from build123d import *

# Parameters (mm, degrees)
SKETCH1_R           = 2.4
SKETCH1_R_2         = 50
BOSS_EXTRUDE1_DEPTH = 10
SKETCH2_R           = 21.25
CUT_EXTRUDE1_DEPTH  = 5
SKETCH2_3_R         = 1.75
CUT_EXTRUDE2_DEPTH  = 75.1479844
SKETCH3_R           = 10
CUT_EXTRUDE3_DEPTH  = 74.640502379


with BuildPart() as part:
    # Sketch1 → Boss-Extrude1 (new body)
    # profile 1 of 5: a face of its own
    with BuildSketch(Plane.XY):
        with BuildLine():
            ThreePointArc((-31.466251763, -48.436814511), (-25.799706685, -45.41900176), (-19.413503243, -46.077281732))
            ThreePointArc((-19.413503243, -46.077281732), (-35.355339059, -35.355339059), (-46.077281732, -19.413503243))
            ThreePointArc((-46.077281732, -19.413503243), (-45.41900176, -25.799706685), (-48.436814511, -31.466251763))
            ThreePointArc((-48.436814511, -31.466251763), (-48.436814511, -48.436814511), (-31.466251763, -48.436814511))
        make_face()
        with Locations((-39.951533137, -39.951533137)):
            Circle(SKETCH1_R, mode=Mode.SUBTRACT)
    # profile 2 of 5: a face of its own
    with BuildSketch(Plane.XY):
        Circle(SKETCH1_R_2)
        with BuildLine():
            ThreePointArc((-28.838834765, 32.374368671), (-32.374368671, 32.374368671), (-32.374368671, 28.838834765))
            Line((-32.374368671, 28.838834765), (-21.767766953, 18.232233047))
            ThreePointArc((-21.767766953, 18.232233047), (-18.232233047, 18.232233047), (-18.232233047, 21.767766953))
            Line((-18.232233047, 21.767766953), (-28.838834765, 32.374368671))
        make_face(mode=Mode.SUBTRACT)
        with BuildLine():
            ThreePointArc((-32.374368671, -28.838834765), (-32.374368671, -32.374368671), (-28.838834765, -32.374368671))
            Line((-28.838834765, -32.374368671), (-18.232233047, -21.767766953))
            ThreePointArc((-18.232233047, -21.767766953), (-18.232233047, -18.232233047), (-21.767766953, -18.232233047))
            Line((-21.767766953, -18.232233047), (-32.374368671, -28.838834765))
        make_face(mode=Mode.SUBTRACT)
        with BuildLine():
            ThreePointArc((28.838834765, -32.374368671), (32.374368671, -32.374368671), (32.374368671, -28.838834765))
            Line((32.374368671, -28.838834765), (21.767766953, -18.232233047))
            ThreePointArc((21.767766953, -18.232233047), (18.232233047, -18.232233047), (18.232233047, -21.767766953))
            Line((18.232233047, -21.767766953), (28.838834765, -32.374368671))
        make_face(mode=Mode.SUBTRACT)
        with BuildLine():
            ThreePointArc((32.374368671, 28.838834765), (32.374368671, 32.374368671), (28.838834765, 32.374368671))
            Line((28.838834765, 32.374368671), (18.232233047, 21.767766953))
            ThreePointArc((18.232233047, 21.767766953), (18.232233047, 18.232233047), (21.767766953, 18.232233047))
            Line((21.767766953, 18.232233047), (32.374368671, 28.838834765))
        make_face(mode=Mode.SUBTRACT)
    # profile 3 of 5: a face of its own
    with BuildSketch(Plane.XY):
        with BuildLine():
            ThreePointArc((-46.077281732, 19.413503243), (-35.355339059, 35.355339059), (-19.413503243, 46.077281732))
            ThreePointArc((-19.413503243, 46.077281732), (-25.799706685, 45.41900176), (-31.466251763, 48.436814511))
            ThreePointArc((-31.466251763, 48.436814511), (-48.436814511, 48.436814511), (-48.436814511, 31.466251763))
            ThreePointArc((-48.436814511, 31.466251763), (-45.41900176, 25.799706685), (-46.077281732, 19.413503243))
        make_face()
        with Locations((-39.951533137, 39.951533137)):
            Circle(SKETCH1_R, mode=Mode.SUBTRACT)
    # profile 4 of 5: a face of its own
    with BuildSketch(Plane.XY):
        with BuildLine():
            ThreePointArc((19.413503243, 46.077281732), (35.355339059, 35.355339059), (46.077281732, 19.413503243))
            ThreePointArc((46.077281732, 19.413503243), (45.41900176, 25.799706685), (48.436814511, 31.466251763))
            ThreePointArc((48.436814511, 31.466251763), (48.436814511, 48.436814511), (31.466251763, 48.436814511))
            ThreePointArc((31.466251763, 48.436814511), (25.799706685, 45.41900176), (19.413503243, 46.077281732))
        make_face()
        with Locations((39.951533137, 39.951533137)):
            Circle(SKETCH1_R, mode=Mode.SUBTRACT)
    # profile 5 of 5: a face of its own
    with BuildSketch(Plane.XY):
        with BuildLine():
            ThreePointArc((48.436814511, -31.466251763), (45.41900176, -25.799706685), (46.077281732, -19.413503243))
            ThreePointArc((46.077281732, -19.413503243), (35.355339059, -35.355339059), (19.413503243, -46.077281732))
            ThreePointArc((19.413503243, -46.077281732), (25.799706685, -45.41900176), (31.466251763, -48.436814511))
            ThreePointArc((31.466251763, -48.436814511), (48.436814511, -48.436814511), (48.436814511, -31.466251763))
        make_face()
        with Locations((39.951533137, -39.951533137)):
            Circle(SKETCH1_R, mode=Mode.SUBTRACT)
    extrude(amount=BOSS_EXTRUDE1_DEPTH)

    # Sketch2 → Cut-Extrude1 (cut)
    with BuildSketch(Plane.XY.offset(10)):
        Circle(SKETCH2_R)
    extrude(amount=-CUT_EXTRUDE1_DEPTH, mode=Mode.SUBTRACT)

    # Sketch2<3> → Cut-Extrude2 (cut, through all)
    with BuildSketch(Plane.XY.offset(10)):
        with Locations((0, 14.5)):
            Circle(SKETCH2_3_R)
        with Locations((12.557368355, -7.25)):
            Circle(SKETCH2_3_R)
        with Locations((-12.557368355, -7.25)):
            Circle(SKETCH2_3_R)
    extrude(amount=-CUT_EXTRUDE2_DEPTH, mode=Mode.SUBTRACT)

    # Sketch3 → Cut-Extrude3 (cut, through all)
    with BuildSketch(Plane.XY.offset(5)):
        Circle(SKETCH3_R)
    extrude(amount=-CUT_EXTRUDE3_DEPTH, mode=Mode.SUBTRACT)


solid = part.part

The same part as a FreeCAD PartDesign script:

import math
import FreeCAD as App
import Part
import Sketcher
from FreeCAD import Vector

doc = App.newDocument("Part")
body = doc.addObject("PartDesign::Body", "Body")

# Sketch on XY plane
sketch1 = body.newObject("Sketcher::SketchObject", "Sketch")
sketch1.AttachmentSupport = (doc.getObject("XY_Plane"), [""])
sketch1.MapMode = "FlatFace"
sketch1.addGeometry(Part.ArcOfCircle(Part.Circle(Vector(-23.7, -56.2, 0), Vector(0, 0, 1), 11), math.radians(67), math.radians(135)), False)
sketch1.addGeometry(Part.ArcOfCircle(Part.Circle(Vector(0, 0, 0), Vector(0, 0, 1), 50), math.radians(-113), math.radians(-67)), False)
sketch1.addGeometry(Part.ArcOfCircle(Part.Circle(Vector(23.7, -56.2, 0), Vector(0, 0, 1), 11), math.radians(45), math.radians(113)), False)
sketch1.addGeometry(Part.ArcOfCircle(Part.Circle(Vector(40, -40, 0), Vector(0, 0, 1), 12), math.radians(-135), math.radians(45)), False)
sketch1.addGeometry(Part.ArcOfCircle(Part.Circle(Vector(56.2, -23.7, 0), Vector(0, 0, 1), 11), math.radians(157), math.radians(225)), False)
sketch1.addGeometry(Part.ArcOfCircle(Part.Circle(Vector(0, 0, 0), Vector(0, 0, 1), 50), math.radians(-23), math.radians(23)), False)
sketch1.addGeometry(Part.ArcOfCircle(Part.Circle(Vector(56.2, 23.7, 0), Vector(0, 0, 1), 11), math.radians(135), math.radians(203)), False)
sketch1.addGeometry(Part.ArcOfCircle(Part.Circle(Vector(40, 40, 0), Vector(0, 0, 1), 12), math.radians(-45), math.radians(135)), False)
sketch1.addGeometry(Part.ArcOfCircle(Part.Circle(Vector(23.7, 56.2, 0), Vector(0, 0, 1), 11), math.radians(-113), math.radians(-45)), False)
sketch1.addGeometry(Part.ArcOfCircle(Part.Circle(Vector(0, 0, 0), Vector(0, 0, 1), 50), math.radians(67), math.radians(113)), False)
sketch1.addGeometry(Part.ArcOfCircle(Part.Circle(Vector(-23.7, 56.2, 0), Vector(0, 0, 1), 11), math.radians(-135), math.radians(-67)), False)
sketch1.addGeometry(Part.ArcOfCircle(Part.Circle(Vector(-40, 40, 0), Vector(0, 0, 1), 12), math.radians(45), math.radians(225)), False)
sketch1.addGeometry(Part.ArcOfCircle(Part.Circle(Vector(-56.2, 23.7, 0), Vector(0, 0, 1), 11), math.radians(-23), math.radians(45)), False)
sketch1.addGeometry(Part.ArcOfCircle(Part.Circle(Vector(0, 0, 0), Vector(0, 0, 1), 50), math.radians(157), math.radians(203)), False)
sketch1.addGeometry(Part.ArcOfCircle(Part.Circle(Vector(-56.2, -23.7, 0), Vector(0, 0, 1), 11), math.radians(-45), math.radians(23)), False)
sketch1.addGeometry(Part.ArcOfCircle(Part.Circle(Vector(-40, -40, 0), Vector(0, 0, 1), 12), math.radians(135), math.radians(315)), False)
sketch1.addGeometry(Part.Circle(Vector(-40, -40, 0), Vector(0, 0, 1), 2.4), False)
sketch1.addGeometry(Part.LineSegment(Vector(32.4, 28.8, 0), Vector(21.8, 18.2, 0)), False)
sketch1.addGeometry(Part.ArcOfCircle(Part.Circle(Vector(20, 20, 0), Vector(0, 0, 1), 2.5), math.radians(135), math.radians(315)), False)
sketch1.addGeometry(Part.LineSegment(Vector(18.2, 21.8, 0), Vector(28.8, 32.4, 0)), False)
sketch1.addGeometry(Part.ArcOfCircle(Part.Circle(Vector(30.6, 30.6, 0), Vector(0, 0, 1), 2.5), math.radians(-45), math.radians(135)), False)
sketch1.addGeometry(Part.ArcOfCircle(Part.Circle(Vector(-30.6, -30.6, 0), Vector(0, 0, 1), 2.5), math.radians(135), math.radians(315)), False)
sketch1.addGeometry(Part.LineSegment(Vector(-32.4, -28.8, 0), Vector(-21.8, -18.2, 0)), False)
sketch1.addGeometry(Part.ArcOfCircle(Part.Circle(Vector(-20, -20, 0), Vector(0, 0, 1), 2.5), math.radians(-45), math.radians(135)), False)
sketch1.addGeometry(Part.LineSegment(Vector(-18.2, -21.8, 0), Vector(-28.8, -32.4, 0)), False)
sketch1.addGeometry(Part.ArcOfCircle(Part.Circle(Vector(30.6, -30.6, 0), Vector(0, 0, 1), 2.5), math.radians(-135), math.radians(45)), False)
sketch1.addGeometry(Part.LineSegment(Vector(28.8, -32.4, 0), Vector(18.2, -21.8, 0)), False)
sketch1.addGeometry(Part.ArcOfCircle(Part.Circle(Vector(20, -20, 0), Vector(0, 0, 1), 2.5), math.radians(45), math.radians(225)), False)
sketch1.addGeometry(Part.LineSegment(Vector(21.8, -18.2, 0), Vector(32.4, -28.8, 0)), False)
sketch1.addGeometry(Part.ArcOfCircle(Part.Circle(Vector(-30.6, 30.6, 0), Vector(0, 0, 1), 2.5), math.radians(45), math.radians(225)), False)
sketch1.addGeometry(Part.LineSegment(Vector(-28.8, 32.4, 0), Vector(-18.2, 21.8, 0)), False)
sketch1.addGeometry(Part.ArcOfCircle(Part.Circle(Vector(-20, 20, 0), Vector(0, 0, 1), 2.5), math.radians(-135), math.radians(45)), False)
sketch1.addGeometry(Part.LineSegment(Vector(-21.8, 18.2, 0), Vector(-32.4, 28.8, 0)), False)
sketch1.addGeometry(Part.Circle(Vector(40, 40, 0), Vector(0, 0, 1), 2.4), False)
sketch1.addGeometry(Part.Circle(Vector(-40, 40, 0), Vector(0, 0, 1), 2.4), False)
sketch1.addGeometry(Part.Circle(Vector(40, -40, 0), Vector(0, 0, 1), 2.4), False)
sketch1.addConstraint(Sketcher.Constraint("Tangent", 0, 1, 1, 1))
sketch1.addConstraint(Sketcher.Constraint("Tangent", 1, 2, 2, 2))
sketch1.addConstraint(Sketcher.Constraint("Tangent", 2, 1, 3, 1))
sketch1.addConstraint(Sketcher.Constraint("Tangent", 3, 2, 4, 2))
sketch1.addConstraint(Sketcher.Constraint("Tangent", 4, 1, 5, 1))
sketch1.addConstraint(Sketcher.Constraint("Tangent", 5, 2, 6, 2))
sketch1.addConstraint(Sketcher.Constraint("Tangent", 6, 1, 7, 1))
sketch1.addConstraint(Sketcher.Constraint("Tangent", 7, 2, 8, 2))
sketch1.addConstraint(Sketcher.Constraint("Tangent", 8, 1, 9, 1))
sketch1.addConstraint(Sketcher.Constraint("Tangent", 9, 2, 10, 2))
sketch1.addConstraint(Sketcher.Constraint("Tangent", 10, 1, 11, 1))
sketch1.addConstraint(Sketcher.Constraint("Tangent", 11, 2, 12, 2))
sketch1.addConstraint(Sketcher.Constraint("Tangent", 12, 1, 13, 1))
sketch1.addConstraint(Sketcher.Constraint("Tangent", 13, 2, 14, 2))
sketch1.addConstraint(Sketcher.Constraint("Tangent", 14, 1, 15, 1))
sketch1.addConstraint(Sketcher.Constraint("Tangent", 15, 2, 0, 2))
sketch1.addConstraint(Sketcher.Constraint("Tangent", 17, 2, 18, 2))
sketch1.addConstraint(Sketcher.Constraint("Tangent", 18, 1, 19, 1))
sketch1.addConstraint(Sketcher.Constraint("Tangent", 19, 2, 20, 2))
sketch1.addConstraint(Sketcher.Constraint("Tangent", 20, 1, 17, 1))
sketch1.addConstraint(Sketcher.Constraint("Tangent", 21, 1, 22, 1))
sketch1.addConstraint(Sketcher.Constraint("Tangent", 22, 2, 23, 2))
sketch1.addConstraint(Sketcher.Constraint("Tangent", 23, 1, 24, 1))
sketch1.addConstraint(Sketcher.Constraint("Tangent", 24, 2, 21, 2))
sketch1.addConstraint(Sketcher.Constraint("Tangent", 25, 1, 26, 1))
sketch1.addConstraint(Sketcher.Constraint("Tangent", 26, 2, 27, 2))
sketch1.addConstraint(Sketcher.Constraint("Tangent", 27, 1, 28, 1))
sketch1.addConstraint(Sketcher.Constraint("Tangent", 28, 2, 25, 2))
sketch1.addConstraint(Sketcher.Constraint("Tangent", 29, 1, 30, 1))
sketch1.addConstraint(Sketcher.Constraint("Tangent", 30, 2, 31, 2))
sketch1.addConstraint(Sketcher.Constraint("Tangent", 31, 1, 32, 1))
sketch1.addConstraint(Sketcher.Constraint("Tangent", 32, 2, 29, 2))
sketch1.addConstraint(Sketcher.Constraint("Coincident", 1, 3, -1, 1))
sketch1.addConstraint(Sketcher.Constraint("Coincident", 5, 3, -1, 1))
sketch1.addConstraint(Sketcher.Constraint("Coincident", 9, 3, -1, 1))
sketch1.addConstraint(Sketcher.Constraint("Coincident", 13, 3, -1, 1))
sketch1.addConstraint(Sketcher.Constraint("Coincident", 16, 3, 15, 3))
sketch1.addConstraint(Sketcher.Constraint("Coincident", 33, 3, 7, 3))
sketch1.addConstraint(Sketcher.Constraint("Coincident", 34, 3, 11, 3))
sketch1.addConstraint(Sketcher.Constraint("Coincident", 35, 3, 3, 3))
sketch1.addConstraint(Sketcher.Constraint("Equal", 0, 2))
sketch1.addConstraint(Sketcher.Constraint("Equal", 2, 4))
sketch1.addConstraint(Sketcher.Constraint("Equal", 1, 5))
sketch1.addConstraint(Sketcher.Constraint("Equal", 4, 6))
sketch1.addConstraint(Sketcher.Constraint("Equal", 3, 7))
sketch1.addConstraint(Sketcher.Constraint("Equal", 6, 8))
sketch1.addConstraint(Sketcher.Constraint("Equal", 5, 9))
sketch1.addConstraint(Sketcher.Constraint("Equal", 8, 10))
sketch1.addConstraint(Sketcher.Constraint("Equal", 7, 11))
sketch1.addConstraint(Sketcher.Constraint("Equal", 10, 12))
sketch1.addConstraint(Sketcher.Constraint("Equal", 9, 13))
sketch1.addConstraint(Sketcher.Constraint("Equal", 12, 14))
sketch1.addConstraint(Sketcher.Constraint("Equal", 11, 15))
sketch1.addConstraint(Sketcher.Constraint("Equal", 18, 20))
sketch1.addConstraint(Sketcher.Constraint("Equal", 20, 21))
sketch1.addConstraint(Sketcher.Constraint("Equal", 21, 23))
sketch1.addConstraint(Sketcher.Constraint("Equal", 23, 25))
sketch1.addConstraint(Sketcher.Constraint("Equal", 25, 27))
sketch1.addConstraint(Sketcher.Constraint("Equal", 27, 29))
sketch1.addConstraint(Sketcher.Constraint("Equal", 29, 31))
sketch1.addConstraint(Sketcher.Constraint("Equal", 16, 33))
sketch1.addConstraint(Sketcher.Constraint("Equal", 33, 34))
sketch1.addConstraint(Sketcher.Constraint("Equal", 34, 35))
sketch1.addConstraint(Sketcher.Constraint("Symmetric", 3, 3, 11, 3, -1, 1))
sketch1.addConstraint(Sketcher.Constraint("Symmetric", 7, 3, 15, 3, -1, 1))
sketch1.addConstraint(Sketcher.Constraint("Symmetric", 20, 3, 21, 3, -1, 1))
sketch1.addConstraint(Sketcher.Constraint("Symmetric", 18, 3, 23, 3, -1, 1))
sketch1.addConstraint(Sketcher.Constraint("Symmetric", 25, 3, 29, 3, -1, 1))
sketch1.addConstraint(Sketcher.Constraint("Symmetric", 27, 3, 31, 3, -1, 1))
sketch1.addConstraint(Sketcher.Constraint("Symmetric", 7, 3, 11, 3, -2))
sketch1.addConstraint(Sketcher.Constraint("Symmetric", 21, 3, 25, 3, -2))
sketch1.addConstraint(Sketcher.Constraint("Symmetric", 23, 3, 27, 3, -2))
sketch1.addConstraint(Sketcher.Constraint("Perpendicular", 24, 26))
sketch1.addConstraint(Sketcher.Constraint("Radius", 1, 50.0))
sketch1.addConstraint(Sketcher.Constraint("Radius", 3, 12.0))
sketch1.addConstraint(Sketcher.Constraint("Diameter", 16, 4.8))
sketch1.addConstraint(Sketcher.Constraint("Radius", 18, 2.5))
sketch1.addConstraint(Sketcher.Constraint("Distance", 17, 15.0))
sketch1.addConstraint(Sketcher.Constraint("DistanceX", -1, 1, 18, 3, 20.0))
sketch1.addConstraint(Sketcher.Constraint("DistanceY", -1, 1, 18, 3, 20.0))
sketch1.addConstraint(Sketcher.Constraint("Radius", 0, 11.003289))
sketch1.addConstraint(Sketcher.Constraint("DistanceX", 21, 3, 0, 1, 11.193098))
sketch1.addConstraint(Sketcher.Constraint("DistanceX", 2, 3, 2, 1, 7.780501))
pad1 = body.newObject("PartDesign::Pad", "Pad")
pad1.Profile = sketch1
pad1.Length = 10

# Sketch on XY plane
sketch2 = body.newObject("Sketcher::SketchObject", "Sketch001")
sketch2.AttachmentSupport = (doc.getObject("XY_Plane"), [""])
sketch2.MapMode = "FlatFace"
sketch2.AttachmentOffset = App.Placement(Vector(0, 0, 10), App.Rotation())
sketch2.addGeometry(Part.Circle(Vector(0, 0, 0), Vector(0, 0, 1), 21), False)
sketch2.addConstraint(Sketcher.Constraint("Coincident", 0, 3, -1, 1))
sketch2.addConstraint(Sketcher.Constraint("Diameter", 0, 42.5))
pocket1 = body.newObject("PartDesign::Pocket", "Pocket")
pocket1.Profile = sketch2
pocket1.Length = 5

# Sketch on XY plane
sketch3 = body.newObject("Sketcher::SketchObject", "Sketch002")
sketch3.AttachmentSupport = (doc.getObject("XY_Plane"), [""])
sketch3.MapMode = "FlatFace"
sketch3.AttachmentOffset = App.Placement(Vector(0, 0, 10), App.Rotation())
sketch3.addGeometry(Part.Circle(Vector(0, 14.5, 0), Vector(0, 0, 1), 1.8), False)
sketch3.addGeometry(Part.Circle(Vector(12.6, -7.2, 0), Vector(0, 0, 1), 1.8), False)
sketch3.addGeometry(Part.Circle(Vector(-12.6, -7.2, 0), Vector(0, 0, 1), 1.8), False)
sketch3.addConstraint(Sketcher.Constraint("Equal", 0, 1))
sketch3.addConstraint(Sketcher.Constraint("Equal", 1, 2))
sketch3.addConstraint(Sketcher.Constraint("Symmetric", 1, 3, 2, 3, -2))
sketch3.addConstraint(Sketcher.Constraint("PointOnObject", 0, 3, -2))
sketch3.addConstraint(Sketcher.Constraint("Diameter", 0, 3.5))
sketch3.addConstraint(Sketcher.Constraint("DistanceY", -1, 1, 0, 3, 14.5))
sketch3.addConstraint(Sketcher.Constraint("DistanceY", 1, 3, -1, 1, 7.25))
sketch3.addConstraint(Sketcher.Constraint("DistanceX", -1, 1, 1, 3, 12.557368))
pocket2 = body.newObject("PartDesign::Pocket", "Pocket001")
pocket2.Profile = sketch3
pocket2.Type = "ThroughAll"

# Sketch on XY plane
sketch4 = body.newObject("Sketcher::SketchObject", "Sketch003")
sketch4.AttachmentSupport = (doc.getObject("XY_Plane"), [""])
sketch4.MapMode = "FlatFace"
sketch4.AttachmentOffset = App.Placement(Vector(0, 0, 5), App.Rotation())
sketch4.addGeometry(Part.Circle(Vector(0, 0, 0), Vector(0, 0, 1), 10), False)
sketch4.addConstraint(Sketcher.Constraint("Coincident", 0, 3, -1, 1))
sketch4.addConstraint(Sketcher.Constraint("Diameter", 0, 20.0))
pocket3 = body.newObject("PartDesign::Pocket", "Pocket002")
pocket3.Profile = sketch4
pocket3.Type = "ThroughAll"

doc.recompute()
